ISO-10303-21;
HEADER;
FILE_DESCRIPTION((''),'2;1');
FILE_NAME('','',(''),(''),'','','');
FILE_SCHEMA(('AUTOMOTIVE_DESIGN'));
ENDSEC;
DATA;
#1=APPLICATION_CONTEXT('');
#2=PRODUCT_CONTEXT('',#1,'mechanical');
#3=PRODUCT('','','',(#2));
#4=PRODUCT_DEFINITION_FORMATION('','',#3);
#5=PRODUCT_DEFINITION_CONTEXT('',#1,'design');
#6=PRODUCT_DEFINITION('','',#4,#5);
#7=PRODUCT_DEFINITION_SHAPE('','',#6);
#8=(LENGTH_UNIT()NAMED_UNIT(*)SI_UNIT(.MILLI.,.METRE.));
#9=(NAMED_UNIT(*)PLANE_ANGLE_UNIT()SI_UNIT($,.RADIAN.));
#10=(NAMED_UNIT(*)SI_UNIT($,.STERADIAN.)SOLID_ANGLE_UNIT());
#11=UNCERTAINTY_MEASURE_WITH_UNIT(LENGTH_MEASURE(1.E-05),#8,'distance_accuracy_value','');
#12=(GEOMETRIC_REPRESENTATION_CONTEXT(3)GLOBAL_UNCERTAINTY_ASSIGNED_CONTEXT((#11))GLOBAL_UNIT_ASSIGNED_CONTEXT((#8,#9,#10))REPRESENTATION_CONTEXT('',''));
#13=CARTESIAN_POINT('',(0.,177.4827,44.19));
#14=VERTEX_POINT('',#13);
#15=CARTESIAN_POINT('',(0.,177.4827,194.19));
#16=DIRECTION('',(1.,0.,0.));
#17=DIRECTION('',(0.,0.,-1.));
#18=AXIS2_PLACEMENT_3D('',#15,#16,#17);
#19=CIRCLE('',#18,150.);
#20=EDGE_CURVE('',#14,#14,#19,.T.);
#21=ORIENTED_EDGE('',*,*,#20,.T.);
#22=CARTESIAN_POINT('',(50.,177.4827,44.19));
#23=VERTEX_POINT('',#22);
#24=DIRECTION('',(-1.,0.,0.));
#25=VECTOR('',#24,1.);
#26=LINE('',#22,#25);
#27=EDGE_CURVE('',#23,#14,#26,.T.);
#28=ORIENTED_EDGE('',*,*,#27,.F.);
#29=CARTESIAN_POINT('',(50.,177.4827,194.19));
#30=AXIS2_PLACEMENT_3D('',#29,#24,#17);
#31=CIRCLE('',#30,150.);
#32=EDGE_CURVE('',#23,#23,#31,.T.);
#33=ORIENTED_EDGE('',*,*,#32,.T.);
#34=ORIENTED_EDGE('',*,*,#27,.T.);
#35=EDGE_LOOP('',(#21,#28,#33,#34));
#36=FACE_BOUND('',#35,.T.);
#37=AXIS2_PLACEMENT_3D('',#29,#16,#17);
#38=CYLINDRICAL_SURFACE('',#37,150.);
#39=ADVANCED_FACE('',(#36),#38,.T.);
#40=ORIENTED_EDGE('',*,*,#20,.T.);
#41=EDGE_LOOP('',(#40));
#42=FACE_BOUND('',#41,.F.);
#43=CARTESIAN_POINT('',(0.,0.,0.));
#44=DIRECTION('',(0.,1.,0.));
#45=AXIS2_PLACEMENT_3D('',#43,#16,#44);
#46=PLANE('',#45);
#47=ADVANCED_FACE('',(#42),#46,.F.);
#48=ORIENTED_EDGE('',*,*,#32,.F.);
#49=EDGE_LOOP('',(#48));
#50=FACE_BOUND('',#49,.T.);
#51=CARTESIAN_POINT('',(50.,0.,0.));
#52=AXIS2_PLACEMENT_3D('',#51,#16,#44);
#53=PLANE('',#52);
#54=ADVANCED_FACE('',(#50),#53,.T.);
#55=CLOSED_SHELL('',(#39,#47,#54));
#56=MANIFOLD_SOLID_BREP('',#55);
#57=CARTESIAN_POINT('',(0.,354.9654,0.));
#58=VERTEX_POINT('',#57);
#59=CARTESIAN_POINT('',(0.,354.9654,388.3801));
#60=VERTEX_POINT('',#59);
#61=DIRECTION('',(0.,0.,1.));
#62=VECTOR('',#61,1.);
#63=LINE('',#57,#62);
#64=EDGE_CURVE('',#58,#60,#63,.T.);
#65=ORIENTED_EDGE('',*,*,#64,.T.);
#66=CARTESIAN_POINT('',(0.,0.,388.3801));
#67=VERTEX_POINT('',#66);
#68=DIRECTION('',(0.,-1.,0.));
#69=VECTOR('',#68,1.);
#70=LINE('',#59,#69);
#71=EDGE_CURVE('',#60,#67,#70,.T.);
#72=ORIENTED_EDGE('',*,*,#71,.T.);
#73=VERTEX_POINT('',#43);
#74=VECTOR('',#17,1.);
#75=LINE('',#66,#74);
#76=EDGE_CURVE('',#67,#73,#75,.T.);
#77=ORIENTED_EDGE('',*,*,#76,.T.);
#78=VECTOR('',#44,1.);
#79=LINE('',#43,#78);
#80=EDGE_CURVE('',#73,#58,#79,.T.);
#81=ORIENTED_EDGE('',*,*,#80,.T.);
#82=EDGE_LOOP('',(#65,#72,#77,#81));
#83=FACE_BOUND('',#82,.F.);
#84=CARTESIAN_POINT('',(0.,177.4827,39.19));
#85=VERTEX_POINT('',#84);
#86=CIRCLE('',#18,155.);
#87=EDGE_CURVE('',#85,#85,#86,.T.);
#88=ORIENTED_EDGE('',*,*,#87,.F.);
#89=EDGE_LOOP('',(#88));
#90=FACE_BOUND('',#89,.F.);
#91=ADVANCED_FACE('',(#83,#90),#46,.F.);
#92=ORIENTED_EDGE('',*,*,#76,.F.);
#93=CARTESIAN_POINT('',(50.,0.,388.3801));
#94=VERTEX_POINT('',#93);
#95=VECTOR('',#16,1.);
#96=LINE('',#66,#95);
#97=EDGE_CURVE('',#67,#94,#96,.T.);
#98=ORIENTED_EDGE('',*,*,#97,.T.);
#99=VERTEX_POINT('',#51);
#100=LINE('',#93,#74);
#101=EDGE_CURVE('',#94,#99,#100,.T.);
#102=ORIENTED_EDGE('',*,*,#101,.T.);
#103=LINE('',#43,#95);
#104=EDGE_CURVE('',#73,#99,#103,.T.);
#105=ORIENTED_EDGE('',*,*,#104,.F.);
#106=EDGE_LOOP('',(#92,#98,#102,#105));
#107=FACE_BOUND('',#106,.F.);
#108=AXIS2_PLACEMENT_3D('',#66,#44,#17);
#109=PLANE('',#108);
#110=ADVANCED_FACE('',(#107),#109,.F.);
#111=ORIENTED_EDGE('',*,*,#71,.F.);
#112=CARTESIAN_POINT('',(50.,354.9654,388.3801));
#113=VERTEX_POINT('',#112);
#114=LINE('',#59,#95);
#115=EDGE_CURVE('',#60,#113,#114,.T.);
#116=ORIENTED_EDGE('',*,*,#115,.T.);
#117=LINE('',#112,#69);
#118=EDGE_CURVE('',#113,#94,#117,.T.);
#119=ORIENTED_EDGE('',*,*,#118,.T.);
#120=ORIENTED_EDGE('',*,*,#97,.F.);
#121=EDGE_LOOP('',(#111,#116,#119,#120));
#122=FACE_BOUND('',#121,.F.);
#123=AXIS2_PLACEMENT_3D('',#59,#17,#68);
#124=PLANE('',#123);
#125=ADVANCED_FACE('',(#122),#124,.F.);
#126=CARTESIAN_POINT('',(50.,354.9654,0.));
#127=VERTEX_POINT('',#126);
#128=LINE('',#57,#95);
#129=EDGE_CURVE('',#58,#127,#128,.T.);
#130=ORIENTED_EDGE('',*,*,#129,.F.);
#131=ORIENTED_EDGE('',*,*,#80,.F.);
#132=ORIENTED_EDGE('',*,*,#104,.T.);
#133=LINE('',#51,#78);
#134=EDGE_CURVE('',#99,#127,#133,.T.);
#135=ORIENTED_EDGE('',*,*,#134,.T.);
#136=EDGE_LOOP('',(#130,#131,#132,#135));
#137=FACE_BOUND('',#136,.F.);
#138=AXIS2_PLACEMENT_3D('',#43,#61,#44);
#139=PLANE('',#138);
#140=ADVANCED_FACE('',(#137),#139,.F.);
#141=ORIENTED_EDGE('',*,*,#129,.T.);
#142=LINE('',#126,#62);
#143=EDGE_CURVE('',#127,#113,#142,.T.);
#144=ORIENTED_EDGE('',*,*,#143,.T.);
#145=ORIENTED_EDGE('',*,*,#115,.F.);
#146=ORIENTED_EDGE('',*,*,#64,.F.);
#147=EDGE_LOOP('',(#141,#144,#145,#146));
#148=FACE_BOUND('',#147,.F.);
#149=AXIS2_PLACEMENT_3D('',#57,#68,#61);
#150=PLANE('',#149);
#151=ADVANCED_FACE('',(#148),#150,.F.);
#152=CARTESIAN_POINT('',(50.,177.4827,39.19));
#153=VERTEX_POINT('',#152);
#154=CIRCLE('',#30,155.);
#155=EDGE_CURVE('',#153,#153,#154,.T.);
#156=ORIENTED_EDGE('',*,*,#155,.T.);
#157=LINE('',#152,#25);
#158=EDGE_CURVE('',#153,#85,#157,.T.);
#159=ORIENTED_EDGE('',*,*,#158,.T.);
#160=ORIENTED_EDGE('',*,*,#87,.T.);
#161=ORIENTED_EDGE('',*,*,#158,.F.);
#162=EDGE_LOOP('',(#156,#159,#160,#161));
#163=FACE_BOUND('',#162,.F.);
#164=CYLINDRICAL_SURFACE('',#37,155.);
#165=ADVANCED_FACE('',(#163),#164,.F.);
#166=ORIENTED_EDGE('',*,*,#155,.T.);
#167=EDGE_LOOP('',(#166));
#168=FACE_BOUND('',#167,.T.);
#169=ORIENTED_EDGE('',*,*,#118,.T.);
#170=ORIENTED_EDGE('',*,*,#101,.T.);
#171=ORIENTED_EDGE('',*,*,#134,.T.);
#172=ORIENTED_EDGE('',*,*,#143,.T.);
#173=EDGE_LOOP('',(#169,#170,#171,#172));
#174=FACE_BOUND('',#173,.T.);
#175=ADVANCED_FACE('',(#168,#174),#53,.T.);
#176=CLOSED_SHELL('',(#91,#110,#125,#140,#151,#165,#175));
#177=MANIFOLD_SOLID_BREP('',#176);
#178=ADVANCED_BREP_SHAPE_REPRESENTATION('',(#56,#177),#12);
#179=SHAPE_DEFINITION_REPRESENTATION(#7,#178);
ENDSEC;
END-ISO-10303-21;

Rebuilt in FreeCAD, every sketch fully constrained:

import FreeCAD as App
import Part
import Sketcher
from FreeCAD import Vector
Q = App.Units.Quantity

doc = App.newDocument("Part")
params = doc.addObject("Spreadsheet::Sheet", "Params")
for row, (alias, value) in enumerate([
    ("sketch1_height", "388.38 mm"),
    ("pad1_length", "50 mm"),
    ("sketch2_diameter", "300 mm"),
    ("sketch2_diameter2", "310 mm"),
], start=1):
    params.set(f"A{row}", alias)
    params.set(f"B{row}", "=" + value)
    params.setAlias(f"B{row}", alias)

body = doc.addObject("PartDesign::Body", "Body")
body.AllowCompound = True

sketch1 = doc.addObject("Sketcher::SketchObject", "Sketch")
body.addObject(sketch1)
sketch1.AttachmentSupport = (doc.YZ_Plane, [""])
sketch1.MapMode = "FlatFace"
sketch1.addGeometry([
    Part.LineSegment(Vector(0, 388.3801, 0), Vector(0, 0, 0)),
    Part.LineSegment(Vector(0, 0, 0), Vector(354.9654, 0, 0)),
    Part.LineSegment(Vector(354.9654, 0, 0), Vector(354.9654, 388.3801, 0)),
    Part.LineSegment(Vector(354.9654, 388.3801, 0), Vector(0, 388.3801, 0)),
], False)
sketch1.addConstraint([
    Sketcher.Constraint("Coincident", 0, 2, 1, 1),
    Sketcher.Constraint("Coincident", 1, 2, 2, 1),
    Sketcher.Constraint("Coincident", 2, 2, 3, 1),
    Sketcher.Constraint("Coincident", 3, 2, 0, 1),
    Sketcher.Constraint("Vertical", 0),
    Sketcher.Constraint("Horizontal", 1),
    Sketcher.Constraint("Vertical", 2),
    Sketcher.Constraint("Horizontal", 3),
    Sketcher.Constraint("Coincident", 0, 2, -1, 1),
    Sketcher.Constraint("DistanceY", 0, 2, 0, 1, Q("388.38 mm")),
    Sketcher.Constraint("DistanceX", 1, 1, 1, 2, Q("354.9654 mm")),
])
sketch1.setExpression("Constraints[9]", "Params.sketch1_height")
pad1 = doc.addObject("PartDesign::Pad", "Pad")
body.addObject(pad1)
pad1.Profile = sketch1
pad1.setExpression("Length", "Params.pad1_length")

sketch2 = doc.addObject("Sketcher::SketchObject", "Sketch001")
body.addObject(sketch2)
sketch2.AttachmentSupport = (doc.YZ_Plane, [""])
sketch2.MapMode = "FlatFace"
sketch2.AttachmentOffset = App.Placement(Vector(0, 0, 50), App.Rotation())
sketch2.addGeometry([
    Part.Circle(Vector(177.4827, 194.19, 0), Vector(0, 0, 1), 155),
    Part.Circle(Vector(177.4827, 194.19, 0), Vector(0, 0, 1), 150),
], False)
sketch2.addConstraint([
    Sketcher.Constraint("Coincident", 1, 3, 0, 3),
    Sketcher.Constraint("Diameter", 1, Q("300 mm")),
    Sketcher.Constraint("Diameter", 0, Q("310 mm")),
    Sketcher.Constraint("DistanceY", -1, 1, 0, 3, Q("194.19 mm")),
    Sketcher.Constraint("DistanceX", -1, 1, 0, 3, Q("177.4827 mm")),
])
sketch2.setExpression("Constraints[1]", "Params.sketch2_diameter")
sketch2.setExpression("Constraints[2]", "Params.sketch2_diameter2")
pocket1 = doc.addObject("PartDesign::Pocket", "Pocket")
body.addObject(pocket1)
pocket1.Profile = sketch2
pocket1.Type = "ThroughAll"

doc.recompute()
